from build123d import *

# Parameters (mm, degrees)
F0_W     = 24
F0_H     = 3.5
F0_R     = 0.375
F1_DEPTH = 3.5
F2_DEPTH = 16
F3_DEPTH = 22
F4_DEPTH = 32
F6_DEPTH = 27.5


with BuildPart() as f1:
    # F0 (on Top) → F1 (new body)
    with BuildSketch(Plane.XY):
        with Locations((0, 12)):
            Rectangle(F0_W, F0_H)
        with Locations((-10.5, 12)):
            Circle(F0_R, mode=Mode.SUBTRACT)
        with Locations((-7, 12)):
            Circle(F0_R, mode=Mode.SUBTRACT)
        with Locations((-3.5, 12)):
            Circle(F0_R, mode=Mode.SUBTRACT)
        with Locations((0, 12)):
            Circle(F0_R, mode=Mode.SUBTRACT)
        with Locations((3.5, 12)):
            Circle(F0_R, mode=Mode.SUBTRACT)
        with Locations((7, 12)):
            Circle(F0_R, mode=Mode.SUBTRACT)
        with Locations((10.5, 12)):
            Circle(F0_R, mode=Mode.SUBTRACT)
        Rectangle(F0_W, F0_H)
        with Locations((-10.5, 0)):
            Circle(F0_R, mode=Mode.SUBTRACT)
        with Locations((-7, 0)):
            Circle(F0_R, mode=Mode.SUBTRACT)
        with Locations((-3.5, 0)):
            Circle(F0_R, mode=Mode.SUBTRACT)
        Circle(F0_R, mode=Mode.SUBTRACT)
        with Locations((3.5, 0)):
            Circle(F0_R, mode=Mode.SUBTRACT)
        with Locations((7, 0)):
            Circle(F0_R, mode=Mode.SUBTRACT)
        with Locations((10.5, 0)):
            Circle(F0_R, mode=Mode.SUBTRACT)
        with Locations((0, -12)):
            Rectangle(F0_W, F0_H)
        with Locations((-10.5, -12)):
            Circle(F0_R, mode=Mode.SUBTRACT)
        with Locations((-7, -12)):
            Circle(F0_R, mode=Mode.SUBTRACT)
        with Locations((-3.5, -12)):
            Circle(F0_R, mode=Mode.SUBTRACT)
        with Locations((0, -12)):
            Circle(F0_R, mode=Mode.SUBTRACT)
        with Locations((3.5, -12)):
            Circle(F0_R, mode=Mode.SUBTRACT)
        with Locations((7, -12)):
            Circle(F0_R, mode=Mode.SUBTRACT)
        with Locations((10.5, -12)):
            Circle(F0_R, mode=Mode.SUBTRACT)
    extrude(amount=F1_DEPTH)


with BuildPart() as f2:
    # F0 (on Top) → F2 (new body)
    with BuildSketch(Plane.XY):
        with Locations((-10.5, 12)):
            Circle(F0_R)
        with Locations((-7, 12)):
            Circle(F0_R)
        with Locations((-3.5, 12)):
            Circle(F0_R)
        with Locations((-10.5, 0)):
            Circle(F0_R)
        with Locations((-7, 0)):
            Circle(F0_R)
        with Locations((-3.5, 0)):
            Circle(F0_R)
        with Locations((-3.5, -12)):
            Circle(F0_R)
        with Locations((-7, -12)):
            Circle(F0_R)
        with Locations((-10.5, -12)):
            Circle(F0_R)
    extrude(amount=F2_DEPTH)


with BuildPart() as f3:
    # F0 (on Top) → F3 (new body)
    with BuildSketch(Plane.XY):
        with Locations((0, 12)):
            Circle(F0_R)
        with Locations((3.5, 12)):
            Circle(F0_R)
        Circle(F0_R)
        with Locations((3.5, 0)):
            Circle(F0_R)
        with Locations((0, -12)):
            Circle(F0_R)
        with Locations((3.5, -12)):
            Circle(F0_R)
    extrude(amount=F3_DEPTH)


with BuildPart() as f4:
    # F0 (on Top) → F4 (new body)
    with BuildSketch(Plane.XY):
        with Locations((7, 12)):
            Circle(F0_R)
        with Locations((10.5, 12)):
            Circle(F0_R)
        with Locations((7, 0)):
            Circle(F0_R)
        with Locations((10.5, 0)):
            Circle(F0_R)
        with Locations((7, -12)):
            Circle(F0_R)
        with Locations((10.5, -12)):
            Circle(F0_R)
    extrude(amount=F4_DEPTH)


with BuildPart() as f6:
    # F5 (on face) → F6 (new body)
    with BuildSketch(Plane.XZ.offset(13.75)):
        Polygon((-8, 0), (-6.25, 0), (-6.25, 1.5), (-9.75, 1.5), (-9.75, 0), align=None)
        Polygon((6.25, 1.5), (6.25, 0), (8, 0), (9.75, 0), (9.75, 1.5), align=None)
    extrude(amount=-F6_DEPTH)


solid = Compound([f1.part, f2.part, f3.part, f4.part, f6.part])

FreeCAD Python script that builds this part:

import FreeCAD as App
import Part
import Sketcher
Q = App.Units.Quantity


def add_polygon(sketch, points):
    """Adds a closed chain of lines whose ends are joined by coincident constraints."""
    first, n = sketch.GeometryCount, len(points)
    for a, b in zip(points, points[1:] + points[:1]):
        sketch.addGeometry(Part.LineSegment(App.Vector(*a, 0), App.Vector(*b, 0)), False)
    for i in range(n):
        sketch.addConstraint(Sketcher.Constraint("Coincident", first + i, 2, first + (i + 1) % n, 1))

doc = App.newDocument("Part")
body = doc.addObject("PartDesign::Body", "Body")
body.AllowCompound = True

# Sketch on XY plane
sketch1 = body.newObject("Sketcher::SketchObject", "Sketch")
sketch1.AttachmentSupport = (doc.getObject("XY_Plane"), [""])
sketch1.MapMode = "FlatFace"
add_polygon(sketch1, [(-12, 13.75), (-12, 10.25), (12, 10.25), (12, 13.75)])  # lines 0-3
sketch1.addGeometry(Part.Circle(App.Vector(-10.5, 12, 0), App.Vector(0, 0, 1), 0.38), False)  # 4
sketch1.addGeometry(Part.Circle(App.Vector(-7, 12, 0), App.Vector(0, 0, 1), 0.38), False)  # 5
sketch1.addGeometry(Part.Circle(App.Vector(-3.5, 12, 0), App.Vector(0, 0, 1), 0.38), False)  # 6
sketch1.addGeometry(Part.Circle(App.Vector(0, 12, 0), App.Vector(0, 0, 1), 0.38), False)  # 7
sketch1.addGeometry(Part.Circle(App.Vector(3.5, 12, 0), App.Vector(0, 0, 1), 0.38), False)  # 8
sketch1.addGeometry(Part.Circle(App.Vector(7, 12, 0), App.Vector(0, 0, 1), 0.38), False)  # 9
sketch1.addGeometry(Part.Circle(App.Vector(10.5, 12, 0), App.Vector(0, 0, 1), 0.38), False)  # 10
add_polygon(sketch1, [(-12, 1.75), (-12, -1.75), (12, -1.75), (12, 1.75)])  # lines 11-14
sketch1.addGeometry(Part.Circle(App.Vector(-10.5, 0, 0), App.Vector(0, 0, 1), 0.38), False)  # 15
sketch1.addGeometry(Part.Circle(App.Vector(-7, 0, 0), App.Vector(0, 0, 1), 0.38), False)  # 16
sketch1.addGeometry(Part.Circle(App.Vector(-3.5, 0, 0), App.Vector(0, 0, 1), 0.38), False)  # 17
sketch1.addGeometry(Part.Circle(App.Vector(0, 0, 0), App.Vector(0, 0, 1), 0.38), False)  # 18
sketch1.addGeometry(Part.Circle(App.Vector(3.5, 0, 0), App.Vector(0, 0, 1), 0.38), False)  # 19
sketch1.addGeometry(Part.Circle(App.Vector(7, 0, 0), App.Vector(0, 0, 1), 0.38), False)  # 20
sketch1.addGeometry(Part.Circle(App.Vector(10.5, 0, 0), App.Vector(0, 0, 1), 0.38), False)  # 21
add_polygon(sketch1, [(-12, -10.25), (-12, -13.75), (12, -13.75), (12, -10.25)])  # lines 22-25
sketch1.addGeometry(Part.Circle(App.Vector(-10.5, -12, 0), App.Vector(0, 0, 1), 0.38), False)  # 26
sketch1.addGeometry(Part.Circle(App.Vector(-7, -12, 0), App.Vector(0, 0, 1), 0.38), False)  # 27
sketch1.addGeometry(Part.Circle(App.Vector(-3.5, -12, 0), App.Vector(0, 0, 1), 0.38), False)  # 28
sketch1.addGeometry(Part.Circle(App.Vector(0, -12, 0), App.Vector(0, 0, 1), 0.38), False)  # 29
sketch1.addGeometry(Part.Circle(App.Vector(3.5, -12, 0), App.Vector(0, 0, 1), 0.38), False)  # 30
sketch1.addGeometry(Part.Circle(App.Vector(7, -12, 0), App.Vector(0, 0, 1), 0.38), False)  # 31
sketch1.addGeometry(Part.Circle(App.Vector(10.5, -12, 0), App.Vector(0, 0, 1), 0.38), False)  # 32
sketch1.addConstraint([
    Sketcher.Constraint("Vertical", 0),
    Sketcher.Constraint("Horizontal", 1),
    Sketcher.Constraint("Vertical", 2),
    Sketcher.Constraint("Horizontal", 3),
    Sketcher.Constraint("Vertical", 11),
    Sketcher.Constraint("Horizontal", 12),
    Sketcher.Constraint("Vertical", 13),
    Sketcher.Constraint("Horizontal", 14),
    Sketcher.Constraint("Vertical", 22),
    Sketcher.Constraint("Horizontal", 23),
    Sketcher.Constraint("Vertical", 24),
    Sketcher.Constraint("Horizontal", 25),
    Sketcher.Constraint("Coincident", 18, 3, -1, 1),
    Sketcher.Constraint("Equal", 4, 5),
    Sketcher.Constraint("Equal", 5, 6),
    Sketcher.Constraint("Equal", 6, 7),
    Sketcher.Constraint("Equal", 7, 8),
    Sketcher.Constraint("Equal", 8, 9),
    Sketcher.Constraint("Equal", 9, 10),
    Sketcher.Constraint("Equal", 10, 15),
    Sketcher.Constraint("Equal", 15, 16),
    Sketcher.Constraint("Equal", 16, 17),
    Sketcher.Constraint("Equal", 17, 18),
    Sketcher.Constraint("Equal", 18, 19),
    Sketcher.Constraint("Equal", 19, 20),
    Sketcher.Constraint("Equal", 20, 21),
    Sketcher.Constraint("Equal", 21, 26),
    Sketcher.Constraint("Equal", 26, 27),
    Sketcher.Constraint("Equal", 27, 28),
    Sketcher.Constraint("Equal", 28, 29),
    Sketcher.Constraint("Equal", 29, 30),
    Sketcher.Constraint("Equal", 30, 31),
    Sketcher.Constraint("Equal", 31, 32),
    Sketcher.Constraint("Symmetric", 17, 3, 19, 3, -1, 1),
    Sketcher.Constraint("Symmetric", 16, 3, 20, 3, -1, 1),
    Sketcher.Constraint("Symmetric", 15, 3, 21, 3, -1, 1),
    Sketcher.Constraint("Symmetric", 10, 3, 26, 3, -1, 1),
    Sketcher.Constraint("Symmetric", 9, 3, 27, 3, -1, 1),
    Sketcher.Constraint("Symmetric", 8, 3, 28, 3, -1, 1),
    Sketcher.Constraint("Symmetric", 7, 3, 29, 3, -1, 1),
    Sketcher.Constraint("Symmetric", 6, 3, 30, 3, -1, 1),
    Sketcher.Constraint("Symmetric", 5, 3, 31, 3, -1, 1),
    Sketcher.Constraint("Symmetric", 4, 3, 32, 3, -1, 1),
    Sketcher.Constraint("Symmetric", 11, 2, 13, 2, -1, 1),
    Sketcher.Constraint("Symmetric", 2, 2, 22, 2, -1, 1),
    Sketcher.Constraint("Symmetric", 0, 2, 24, 2, -1, 1),
    Sketcher.Constraint("Symmetric", 6, 3, 8, 3, -2),
    Sketcher.Constraint("Symmetric", 5, 3, 9, 3, -2),
    Sketcher.Constraint("Symmetric", 4, 3, 10, 3, -2),
    Sketcher.Constraint("PointOnObject", 7, 3, -2),
    Sketcher.Constraint("PointOnObject", 15, 3, -1),
    Sketcher.Constraint("PointOnObject", 16, 3, -1),
    Sketcher.Constraint("PointOnObject", 17, 3, -1),
    Sketcher.Constraint("Horizontal", 4, 3, 5, 3),
    Sketcher.Constraint("Horizontal", 5, 3, 6, 3),
    Sketcher.Constraint("Horizontal", 6, 3, 7, 3),
    Sketcher.Constraint("Vertical", 4, 3, 15, 3),
    Sketcher.Constraint("Vertical", 5, 3, 16, 3),
    Sketcher.Constraint("Vertical", 6, 3, 17, 3),
    Sketcher.Constraint("Vertical", 3, 2, 11, 2),
    Sketcher.Constraint("Vertical", 2, 2, 12, 2),
    Sketcher.Constraint("Equal", 2, 11),
    Sketcher.Constraint("Diameter", 4, Q("0.75 mm")),
    Sketcher.Constraint("DistanceX", 1, 1, 1, 2, Q("24 mm")),
    Sketcher.Constraint("DistanceY", 0, 2, 0, 1, Q("3.5 mm")),
    Sketcher.Constraint("DistanceY", -1, 1, 4, 3, Q("12 mm")),
    Sketcher.Constraint("DistanceX", 5, 3, -1, 1, Q("7 mm")),
    Sketcher.Constraint("DistanceX", 4, 3, 6, 3, Q("7 mm")),
    Sketcher.Constraint("DistanceX", 6, 3, 8, 3, Q("7 mm")),
    Sketcher.Constraint("DistanceY", 22, 2, 11, 2, Q("12 mm")),
])
pad1 = body.newObject("PartDesign::Pad", "Pad")
pad1.Profile = sketch1
pad1.Length = 3.5
body2 = doc.addObject("PartDesign::Body", "Body001")
body2.AllowCompound = True

# Sketch on XY plane
sketch2 = body2.newObject("Sketcher::SketchObject", "Sketch001")
sketch2.AttachmentSupport = (doc.getObject("XY_Plane001"), [""])
sketch2.MapMode = "FlatFace"
sketch2.addGeometry([
    Part.Circle(App.Vector(-10.5, 12, 0), App.Vector(0, 0, 1), 0.38),  # 0
    Part.Circle(App.Vector(-7, 12, 0), App.Vector(0, 0, 1), 0.38),  # 1
    Part.Circle(App.Vector(-3.5, 12, 0), App.Vector(0, 0, 1), 0.38),  # 2
    Part.Circle(App.Vector(-10.5, 0, 0), App.Vector(0, 0, 1), 0.38),  # 3
    Part.Circle(App.Vector(-7, 0, 0), App.Vector(0, 0, 1), 0.38),  # 4
    Part.Circle(App.Vector(-3.5, 0, 0), App.Vector(0, 0, 1), 0.38),  # 5
    Part.Circle(App.Vector(-3.5, -12, 0), App.Vector(0, 0, 1), 0.38),  # 6
    Part.Circle(App.Vector(-7, -12, 0), App.Vector(0, 0, 1), 0.38),  # 7
    Part.Circle(App.Vector(-10.5, -12, 0), App.Vector(0, 0, 1), 0.38),  # 8
], False)
sketch2.addConstraint([
    Sketcher.Constraint("Equal", 0, 1),
    Sketcher.Constraint("Equal", 1, 2),
    Sketcher.Constraint("Equal", 2, 3),
    Sketcher.Constraint("Equal", 3, 4),
    Sketcher.Constraint("Equal", 4, 5),
    Sketcher.Constraint("Equal", 5, 6),
    Sketcher.Constraint("Equal", 6, 7),
    Sketcher.Constraint("Equal", 7, 8),
    Sketcher.Constraint("Symmetric", 2, 3, 6, 3, -1),
    Sketcher.Constraint("Symmetric", 1, 3, 7, 3, -1),
    Sketcher.Constraint("Symmetric", 0, 3, 8, 3, -1),
    Sketcher.Constraint("PointOnObject", 3, 3, -1),
    Sketcher.Constraint("PointOnObject", 4, 3, -1),
    Sketcher.Constraint("PointOnObject", 5, 3, -1),
    Sketcher.Constraint("Horizontal", 0, 3, 1, 3),
    Sketcher.Constraint("Horizontal", 1, 3, 2, 3),
    Sketcher.Constraint("Vertical", 0, 3, 3, 3),
    Sketcher.Constraint("Vertical", 1, 3, 4, 3),
    Sketcher.Constraint("Vertical", 2, 3, 5, 3),
    Sketcher.Constraint("Diameter", 0, Q("0.75 mm")),
    Sketcher.Constraint("DistanceY", -1, 1, 0, 3, Q("12 mm")),
    Sketcher.Constraint("DistanceX", 1, 3, -1, 1, Q("7 mm")),
    Sketcher.Constraint("DistanceX", 0, 3, 2, 3, Q("7 mm")),
    Sketcher.Constraint("DistanceX", 0, 3, -1, 1, Q("10.5 mm")),
])
pad2 = body2.newObject("PartDesign::Pad", "Pad001")
pad2.Profile = sketch2
pad2.Length = 16
body3 = doc.addObject("PartDesign::Body", "Body002")
body3.AllowCompound = True

# Sketch on XY plane
sketch3 = body3.newObject("Sketcher::SketchObject", "Sketch002")
sketch3.AttachmentSupport = (doc.getObject("XY_Plane002"), [""])
sketch3.MapMode = "FlatFace"
sketch3.addGeometry([
    Part.Circle(App.Vector(0, 12, 0), App.Vector(0, 0, 1), 0.38),  # 0
    Part.Circle(App.Vector(3.5, 12, 0), App.Vector(0, 0, 1), 0.38),  # 1
    Part.Circle(App.Vector(0, 0, 0), App.Vector(0, 0, 1), 0.38),  # 2
    Part.Circle(App.Vector(3.5, 0, 0), App.Vector(0, 0, 1), 0.38),  # 3
    Part.Circle(App.Vector(0, -12, 0), App.Vector(0, 0, 1), 0.38),  # 4
    Part.Circle(App.Vector(3.5, -12, 0), App.Vector(0, 0, 1), 0.38),  # 5
], False)
sketch3.addConstraint([
    Sketcher.Constraint("Coincident", 2, 3, -1, 1),
    Sketcher.Constraint("Equal", 0, 1),
    Sketcher.Constraint("Equal", 1, 2),
    Sketcher.Constraint("Equal", 2, 3),
    Sketcher.Constraint("Equal", 3, 4),
    Sketcher.Constraint("Equal", 4, 5),
    Sketcher.Constraint("Symmetric", 0, 3, 4, 3, -1, 1),
    Sketcher.Constraint("Symmetric", 1, 3, 5, 3, -1),
    Sketcher.Constraint("PointOnObject", 0, 3, -2),
    Sketcher.Constraint("PointOnObject", 3, 3, -1),
    Sketcher.Constraint("Horizontal", 0, 3, 1, 3),
    Sketcher.Constraint("Vertical", 1, 3, 3, 3),
    Sketcher.Constraint("Diameter", 0, Q("0.75 mm")),
    Sketcher.Constraint("DistanceY", -1, 1, 0, 3, Q("12 mm")),
    Sketcher.Constraint("DistanceX", -1, 1, 1, 3, Q("3.5 mm")),
])
pad3 = body3.newObject("PartDesign::Pad", "Pad002")
pad3.Profile = sketch3
pad3.Length = 22
body4 = doc.addObject("PartDesign::Body", "Body003")
body4.AllowCompound = True

# Sketch on XY plane
sketch4 = body4.newObject("Sketcher::SketchObject", "Sketch003")
sketch4.AttachmentSupport = (doc.getObject("XY_Plane003"), [""])
sketch4.MapMode = "FlatFace"
sketch4.addGeometry([
    Part.Circle(App.Vector(7, 12, 0), App.Vector(0, 0, 1), 0.38),  # 0
    Part.Circle(App.Vector(10.5, 12, 0), App.Vector(0, 0, 1), 0.38),  # 1
    Part.Circle(App.Vector(7, 0, 0), App.Vector(0, 0, 1), 0.38),  # 2
    Part.Circle(App.Vector(10.5, 0, 0), App.Vector(0, 0, 1), 0.38),  # 3
    Part.Circle(App.Vector(7, -12, 0), App.Vector(0, 0, 1), 0.38),  # 4
    Part.Circle(App.Vector(10.5, -12, 0), App.Vector(0, 0, 1), 0.38),  # 5
], False)
sketch4.addConstraint([
    Sketcher.Constraint("Equal", 0, 1),
    Sketcher.Constraint("Equal", 1, 2),
    Sketcher.Constraint("Equal", 2, 3),
    Sketcher.Constraint("Equal", 3, 4),
    Sketcher.Constraint("Equal", 4, 5),
    Sketcher.Constraint("Symmetric", 0, 3, 4, 3, -1),
    Sketcher.Constraint("Symmetric", 1, 3, 5, 3, -1),
    Sketcher.Constraint("PointOnObject", 2, 3, -1),
    Sketcher.Constraint("PointOnObject", 3, 3, -1),
    Sketcher.Constraint("Horizontal", 0, 3, 1, 3),
    Sketcher.Constraint("Vertical", 0, 3, 2, 3),
    Sketcher.Constraint("Vertical", 1, 3, 3, 3),
    Sketcher.Constraint("Diameter", 0, Q("0.75 mm")),
    Sketcher.Constraint("DistanceX", -1, 1, 0, 3, Q("7 mm")),
    Sketcher.Constraint("DistanceY", -1, 1, 0, 3, Q("12 mm")),
    Sketcher.Constraint("DistanceX", -1, 1, 1, 3, Q("10.5 mm")),
])
pad4 = body4.newObject("PartDesign::Pad", "Pad003")
pad4.Profile = sketch4
pad4.Length = 32
body5 = doc.addObject("PartDesign::Body", "Body004")
body5.AllowCompound = True

# Sketch on XZ plane
sketch5 = body5.newObject("Sketcher::SketchObject", "Sketch004")
sketch5.AttachmentSupport = (doc.getObject("XZ_Plane004"), [""])
sketch5.MapMode = "FlatFace"
sketch5.AttachmentOffset = App.Placement(App.Vector(0, 0, 13.75), App.Rotation())
add_polygon(sketch5, [(-6.2, 0), (-6.2, 1.5), (-9.8, 1.5), (-9.8, 0)])  # lines 0-3
add_polygon(sketch5, [(6.2, 1.5), (6.2, 0), (9.8, 0), (9.8, 1.5)])  # lines 4-7
sketch5.addConstraint([
    Sketcher.Constraint("Vertical", 0),
    Sketcher.Constraint("Horizontal", 1),
    Sketcher.Constraint("Vertical", 2),
    Sketcher.Constraint("Horizontal", 3),
    Sketcher.Constraint("Vertical", 4),
    Sketcher.Constraint("Horizontal", 5),
    Sketcher.Constraint("Vertical", 6),
    Sketcher.Constraint("Horizontal", 7),
    Sketcher.Constraint("Symmetric", 3, 2, 4, 2, -1, 1),
    Sketcher.Constraint("Symmetric", 2, 2, 5, 2, -2),
    Sketcher.Constraint("Horizontal", 1, 2, 6, 2),
    Sketcher.Constraint("DistanceX", 1, 2, 1, 1, Q("3.5 mm")),
    Sketcher.Constraint("DistanceY", 0, 1, 0, 2, Q("1.5 mm")),
    Sketcher.Constraint("DistanceX", 2, 2, 4, 2, Q("16 mm")),
])
pad5 = body5.newObject("PartDesign::Pad", "Pad004")
pad5.Profile = sketch5
pad5.Length = 27.5
pad5.Reversed = True

doc.recompute()
